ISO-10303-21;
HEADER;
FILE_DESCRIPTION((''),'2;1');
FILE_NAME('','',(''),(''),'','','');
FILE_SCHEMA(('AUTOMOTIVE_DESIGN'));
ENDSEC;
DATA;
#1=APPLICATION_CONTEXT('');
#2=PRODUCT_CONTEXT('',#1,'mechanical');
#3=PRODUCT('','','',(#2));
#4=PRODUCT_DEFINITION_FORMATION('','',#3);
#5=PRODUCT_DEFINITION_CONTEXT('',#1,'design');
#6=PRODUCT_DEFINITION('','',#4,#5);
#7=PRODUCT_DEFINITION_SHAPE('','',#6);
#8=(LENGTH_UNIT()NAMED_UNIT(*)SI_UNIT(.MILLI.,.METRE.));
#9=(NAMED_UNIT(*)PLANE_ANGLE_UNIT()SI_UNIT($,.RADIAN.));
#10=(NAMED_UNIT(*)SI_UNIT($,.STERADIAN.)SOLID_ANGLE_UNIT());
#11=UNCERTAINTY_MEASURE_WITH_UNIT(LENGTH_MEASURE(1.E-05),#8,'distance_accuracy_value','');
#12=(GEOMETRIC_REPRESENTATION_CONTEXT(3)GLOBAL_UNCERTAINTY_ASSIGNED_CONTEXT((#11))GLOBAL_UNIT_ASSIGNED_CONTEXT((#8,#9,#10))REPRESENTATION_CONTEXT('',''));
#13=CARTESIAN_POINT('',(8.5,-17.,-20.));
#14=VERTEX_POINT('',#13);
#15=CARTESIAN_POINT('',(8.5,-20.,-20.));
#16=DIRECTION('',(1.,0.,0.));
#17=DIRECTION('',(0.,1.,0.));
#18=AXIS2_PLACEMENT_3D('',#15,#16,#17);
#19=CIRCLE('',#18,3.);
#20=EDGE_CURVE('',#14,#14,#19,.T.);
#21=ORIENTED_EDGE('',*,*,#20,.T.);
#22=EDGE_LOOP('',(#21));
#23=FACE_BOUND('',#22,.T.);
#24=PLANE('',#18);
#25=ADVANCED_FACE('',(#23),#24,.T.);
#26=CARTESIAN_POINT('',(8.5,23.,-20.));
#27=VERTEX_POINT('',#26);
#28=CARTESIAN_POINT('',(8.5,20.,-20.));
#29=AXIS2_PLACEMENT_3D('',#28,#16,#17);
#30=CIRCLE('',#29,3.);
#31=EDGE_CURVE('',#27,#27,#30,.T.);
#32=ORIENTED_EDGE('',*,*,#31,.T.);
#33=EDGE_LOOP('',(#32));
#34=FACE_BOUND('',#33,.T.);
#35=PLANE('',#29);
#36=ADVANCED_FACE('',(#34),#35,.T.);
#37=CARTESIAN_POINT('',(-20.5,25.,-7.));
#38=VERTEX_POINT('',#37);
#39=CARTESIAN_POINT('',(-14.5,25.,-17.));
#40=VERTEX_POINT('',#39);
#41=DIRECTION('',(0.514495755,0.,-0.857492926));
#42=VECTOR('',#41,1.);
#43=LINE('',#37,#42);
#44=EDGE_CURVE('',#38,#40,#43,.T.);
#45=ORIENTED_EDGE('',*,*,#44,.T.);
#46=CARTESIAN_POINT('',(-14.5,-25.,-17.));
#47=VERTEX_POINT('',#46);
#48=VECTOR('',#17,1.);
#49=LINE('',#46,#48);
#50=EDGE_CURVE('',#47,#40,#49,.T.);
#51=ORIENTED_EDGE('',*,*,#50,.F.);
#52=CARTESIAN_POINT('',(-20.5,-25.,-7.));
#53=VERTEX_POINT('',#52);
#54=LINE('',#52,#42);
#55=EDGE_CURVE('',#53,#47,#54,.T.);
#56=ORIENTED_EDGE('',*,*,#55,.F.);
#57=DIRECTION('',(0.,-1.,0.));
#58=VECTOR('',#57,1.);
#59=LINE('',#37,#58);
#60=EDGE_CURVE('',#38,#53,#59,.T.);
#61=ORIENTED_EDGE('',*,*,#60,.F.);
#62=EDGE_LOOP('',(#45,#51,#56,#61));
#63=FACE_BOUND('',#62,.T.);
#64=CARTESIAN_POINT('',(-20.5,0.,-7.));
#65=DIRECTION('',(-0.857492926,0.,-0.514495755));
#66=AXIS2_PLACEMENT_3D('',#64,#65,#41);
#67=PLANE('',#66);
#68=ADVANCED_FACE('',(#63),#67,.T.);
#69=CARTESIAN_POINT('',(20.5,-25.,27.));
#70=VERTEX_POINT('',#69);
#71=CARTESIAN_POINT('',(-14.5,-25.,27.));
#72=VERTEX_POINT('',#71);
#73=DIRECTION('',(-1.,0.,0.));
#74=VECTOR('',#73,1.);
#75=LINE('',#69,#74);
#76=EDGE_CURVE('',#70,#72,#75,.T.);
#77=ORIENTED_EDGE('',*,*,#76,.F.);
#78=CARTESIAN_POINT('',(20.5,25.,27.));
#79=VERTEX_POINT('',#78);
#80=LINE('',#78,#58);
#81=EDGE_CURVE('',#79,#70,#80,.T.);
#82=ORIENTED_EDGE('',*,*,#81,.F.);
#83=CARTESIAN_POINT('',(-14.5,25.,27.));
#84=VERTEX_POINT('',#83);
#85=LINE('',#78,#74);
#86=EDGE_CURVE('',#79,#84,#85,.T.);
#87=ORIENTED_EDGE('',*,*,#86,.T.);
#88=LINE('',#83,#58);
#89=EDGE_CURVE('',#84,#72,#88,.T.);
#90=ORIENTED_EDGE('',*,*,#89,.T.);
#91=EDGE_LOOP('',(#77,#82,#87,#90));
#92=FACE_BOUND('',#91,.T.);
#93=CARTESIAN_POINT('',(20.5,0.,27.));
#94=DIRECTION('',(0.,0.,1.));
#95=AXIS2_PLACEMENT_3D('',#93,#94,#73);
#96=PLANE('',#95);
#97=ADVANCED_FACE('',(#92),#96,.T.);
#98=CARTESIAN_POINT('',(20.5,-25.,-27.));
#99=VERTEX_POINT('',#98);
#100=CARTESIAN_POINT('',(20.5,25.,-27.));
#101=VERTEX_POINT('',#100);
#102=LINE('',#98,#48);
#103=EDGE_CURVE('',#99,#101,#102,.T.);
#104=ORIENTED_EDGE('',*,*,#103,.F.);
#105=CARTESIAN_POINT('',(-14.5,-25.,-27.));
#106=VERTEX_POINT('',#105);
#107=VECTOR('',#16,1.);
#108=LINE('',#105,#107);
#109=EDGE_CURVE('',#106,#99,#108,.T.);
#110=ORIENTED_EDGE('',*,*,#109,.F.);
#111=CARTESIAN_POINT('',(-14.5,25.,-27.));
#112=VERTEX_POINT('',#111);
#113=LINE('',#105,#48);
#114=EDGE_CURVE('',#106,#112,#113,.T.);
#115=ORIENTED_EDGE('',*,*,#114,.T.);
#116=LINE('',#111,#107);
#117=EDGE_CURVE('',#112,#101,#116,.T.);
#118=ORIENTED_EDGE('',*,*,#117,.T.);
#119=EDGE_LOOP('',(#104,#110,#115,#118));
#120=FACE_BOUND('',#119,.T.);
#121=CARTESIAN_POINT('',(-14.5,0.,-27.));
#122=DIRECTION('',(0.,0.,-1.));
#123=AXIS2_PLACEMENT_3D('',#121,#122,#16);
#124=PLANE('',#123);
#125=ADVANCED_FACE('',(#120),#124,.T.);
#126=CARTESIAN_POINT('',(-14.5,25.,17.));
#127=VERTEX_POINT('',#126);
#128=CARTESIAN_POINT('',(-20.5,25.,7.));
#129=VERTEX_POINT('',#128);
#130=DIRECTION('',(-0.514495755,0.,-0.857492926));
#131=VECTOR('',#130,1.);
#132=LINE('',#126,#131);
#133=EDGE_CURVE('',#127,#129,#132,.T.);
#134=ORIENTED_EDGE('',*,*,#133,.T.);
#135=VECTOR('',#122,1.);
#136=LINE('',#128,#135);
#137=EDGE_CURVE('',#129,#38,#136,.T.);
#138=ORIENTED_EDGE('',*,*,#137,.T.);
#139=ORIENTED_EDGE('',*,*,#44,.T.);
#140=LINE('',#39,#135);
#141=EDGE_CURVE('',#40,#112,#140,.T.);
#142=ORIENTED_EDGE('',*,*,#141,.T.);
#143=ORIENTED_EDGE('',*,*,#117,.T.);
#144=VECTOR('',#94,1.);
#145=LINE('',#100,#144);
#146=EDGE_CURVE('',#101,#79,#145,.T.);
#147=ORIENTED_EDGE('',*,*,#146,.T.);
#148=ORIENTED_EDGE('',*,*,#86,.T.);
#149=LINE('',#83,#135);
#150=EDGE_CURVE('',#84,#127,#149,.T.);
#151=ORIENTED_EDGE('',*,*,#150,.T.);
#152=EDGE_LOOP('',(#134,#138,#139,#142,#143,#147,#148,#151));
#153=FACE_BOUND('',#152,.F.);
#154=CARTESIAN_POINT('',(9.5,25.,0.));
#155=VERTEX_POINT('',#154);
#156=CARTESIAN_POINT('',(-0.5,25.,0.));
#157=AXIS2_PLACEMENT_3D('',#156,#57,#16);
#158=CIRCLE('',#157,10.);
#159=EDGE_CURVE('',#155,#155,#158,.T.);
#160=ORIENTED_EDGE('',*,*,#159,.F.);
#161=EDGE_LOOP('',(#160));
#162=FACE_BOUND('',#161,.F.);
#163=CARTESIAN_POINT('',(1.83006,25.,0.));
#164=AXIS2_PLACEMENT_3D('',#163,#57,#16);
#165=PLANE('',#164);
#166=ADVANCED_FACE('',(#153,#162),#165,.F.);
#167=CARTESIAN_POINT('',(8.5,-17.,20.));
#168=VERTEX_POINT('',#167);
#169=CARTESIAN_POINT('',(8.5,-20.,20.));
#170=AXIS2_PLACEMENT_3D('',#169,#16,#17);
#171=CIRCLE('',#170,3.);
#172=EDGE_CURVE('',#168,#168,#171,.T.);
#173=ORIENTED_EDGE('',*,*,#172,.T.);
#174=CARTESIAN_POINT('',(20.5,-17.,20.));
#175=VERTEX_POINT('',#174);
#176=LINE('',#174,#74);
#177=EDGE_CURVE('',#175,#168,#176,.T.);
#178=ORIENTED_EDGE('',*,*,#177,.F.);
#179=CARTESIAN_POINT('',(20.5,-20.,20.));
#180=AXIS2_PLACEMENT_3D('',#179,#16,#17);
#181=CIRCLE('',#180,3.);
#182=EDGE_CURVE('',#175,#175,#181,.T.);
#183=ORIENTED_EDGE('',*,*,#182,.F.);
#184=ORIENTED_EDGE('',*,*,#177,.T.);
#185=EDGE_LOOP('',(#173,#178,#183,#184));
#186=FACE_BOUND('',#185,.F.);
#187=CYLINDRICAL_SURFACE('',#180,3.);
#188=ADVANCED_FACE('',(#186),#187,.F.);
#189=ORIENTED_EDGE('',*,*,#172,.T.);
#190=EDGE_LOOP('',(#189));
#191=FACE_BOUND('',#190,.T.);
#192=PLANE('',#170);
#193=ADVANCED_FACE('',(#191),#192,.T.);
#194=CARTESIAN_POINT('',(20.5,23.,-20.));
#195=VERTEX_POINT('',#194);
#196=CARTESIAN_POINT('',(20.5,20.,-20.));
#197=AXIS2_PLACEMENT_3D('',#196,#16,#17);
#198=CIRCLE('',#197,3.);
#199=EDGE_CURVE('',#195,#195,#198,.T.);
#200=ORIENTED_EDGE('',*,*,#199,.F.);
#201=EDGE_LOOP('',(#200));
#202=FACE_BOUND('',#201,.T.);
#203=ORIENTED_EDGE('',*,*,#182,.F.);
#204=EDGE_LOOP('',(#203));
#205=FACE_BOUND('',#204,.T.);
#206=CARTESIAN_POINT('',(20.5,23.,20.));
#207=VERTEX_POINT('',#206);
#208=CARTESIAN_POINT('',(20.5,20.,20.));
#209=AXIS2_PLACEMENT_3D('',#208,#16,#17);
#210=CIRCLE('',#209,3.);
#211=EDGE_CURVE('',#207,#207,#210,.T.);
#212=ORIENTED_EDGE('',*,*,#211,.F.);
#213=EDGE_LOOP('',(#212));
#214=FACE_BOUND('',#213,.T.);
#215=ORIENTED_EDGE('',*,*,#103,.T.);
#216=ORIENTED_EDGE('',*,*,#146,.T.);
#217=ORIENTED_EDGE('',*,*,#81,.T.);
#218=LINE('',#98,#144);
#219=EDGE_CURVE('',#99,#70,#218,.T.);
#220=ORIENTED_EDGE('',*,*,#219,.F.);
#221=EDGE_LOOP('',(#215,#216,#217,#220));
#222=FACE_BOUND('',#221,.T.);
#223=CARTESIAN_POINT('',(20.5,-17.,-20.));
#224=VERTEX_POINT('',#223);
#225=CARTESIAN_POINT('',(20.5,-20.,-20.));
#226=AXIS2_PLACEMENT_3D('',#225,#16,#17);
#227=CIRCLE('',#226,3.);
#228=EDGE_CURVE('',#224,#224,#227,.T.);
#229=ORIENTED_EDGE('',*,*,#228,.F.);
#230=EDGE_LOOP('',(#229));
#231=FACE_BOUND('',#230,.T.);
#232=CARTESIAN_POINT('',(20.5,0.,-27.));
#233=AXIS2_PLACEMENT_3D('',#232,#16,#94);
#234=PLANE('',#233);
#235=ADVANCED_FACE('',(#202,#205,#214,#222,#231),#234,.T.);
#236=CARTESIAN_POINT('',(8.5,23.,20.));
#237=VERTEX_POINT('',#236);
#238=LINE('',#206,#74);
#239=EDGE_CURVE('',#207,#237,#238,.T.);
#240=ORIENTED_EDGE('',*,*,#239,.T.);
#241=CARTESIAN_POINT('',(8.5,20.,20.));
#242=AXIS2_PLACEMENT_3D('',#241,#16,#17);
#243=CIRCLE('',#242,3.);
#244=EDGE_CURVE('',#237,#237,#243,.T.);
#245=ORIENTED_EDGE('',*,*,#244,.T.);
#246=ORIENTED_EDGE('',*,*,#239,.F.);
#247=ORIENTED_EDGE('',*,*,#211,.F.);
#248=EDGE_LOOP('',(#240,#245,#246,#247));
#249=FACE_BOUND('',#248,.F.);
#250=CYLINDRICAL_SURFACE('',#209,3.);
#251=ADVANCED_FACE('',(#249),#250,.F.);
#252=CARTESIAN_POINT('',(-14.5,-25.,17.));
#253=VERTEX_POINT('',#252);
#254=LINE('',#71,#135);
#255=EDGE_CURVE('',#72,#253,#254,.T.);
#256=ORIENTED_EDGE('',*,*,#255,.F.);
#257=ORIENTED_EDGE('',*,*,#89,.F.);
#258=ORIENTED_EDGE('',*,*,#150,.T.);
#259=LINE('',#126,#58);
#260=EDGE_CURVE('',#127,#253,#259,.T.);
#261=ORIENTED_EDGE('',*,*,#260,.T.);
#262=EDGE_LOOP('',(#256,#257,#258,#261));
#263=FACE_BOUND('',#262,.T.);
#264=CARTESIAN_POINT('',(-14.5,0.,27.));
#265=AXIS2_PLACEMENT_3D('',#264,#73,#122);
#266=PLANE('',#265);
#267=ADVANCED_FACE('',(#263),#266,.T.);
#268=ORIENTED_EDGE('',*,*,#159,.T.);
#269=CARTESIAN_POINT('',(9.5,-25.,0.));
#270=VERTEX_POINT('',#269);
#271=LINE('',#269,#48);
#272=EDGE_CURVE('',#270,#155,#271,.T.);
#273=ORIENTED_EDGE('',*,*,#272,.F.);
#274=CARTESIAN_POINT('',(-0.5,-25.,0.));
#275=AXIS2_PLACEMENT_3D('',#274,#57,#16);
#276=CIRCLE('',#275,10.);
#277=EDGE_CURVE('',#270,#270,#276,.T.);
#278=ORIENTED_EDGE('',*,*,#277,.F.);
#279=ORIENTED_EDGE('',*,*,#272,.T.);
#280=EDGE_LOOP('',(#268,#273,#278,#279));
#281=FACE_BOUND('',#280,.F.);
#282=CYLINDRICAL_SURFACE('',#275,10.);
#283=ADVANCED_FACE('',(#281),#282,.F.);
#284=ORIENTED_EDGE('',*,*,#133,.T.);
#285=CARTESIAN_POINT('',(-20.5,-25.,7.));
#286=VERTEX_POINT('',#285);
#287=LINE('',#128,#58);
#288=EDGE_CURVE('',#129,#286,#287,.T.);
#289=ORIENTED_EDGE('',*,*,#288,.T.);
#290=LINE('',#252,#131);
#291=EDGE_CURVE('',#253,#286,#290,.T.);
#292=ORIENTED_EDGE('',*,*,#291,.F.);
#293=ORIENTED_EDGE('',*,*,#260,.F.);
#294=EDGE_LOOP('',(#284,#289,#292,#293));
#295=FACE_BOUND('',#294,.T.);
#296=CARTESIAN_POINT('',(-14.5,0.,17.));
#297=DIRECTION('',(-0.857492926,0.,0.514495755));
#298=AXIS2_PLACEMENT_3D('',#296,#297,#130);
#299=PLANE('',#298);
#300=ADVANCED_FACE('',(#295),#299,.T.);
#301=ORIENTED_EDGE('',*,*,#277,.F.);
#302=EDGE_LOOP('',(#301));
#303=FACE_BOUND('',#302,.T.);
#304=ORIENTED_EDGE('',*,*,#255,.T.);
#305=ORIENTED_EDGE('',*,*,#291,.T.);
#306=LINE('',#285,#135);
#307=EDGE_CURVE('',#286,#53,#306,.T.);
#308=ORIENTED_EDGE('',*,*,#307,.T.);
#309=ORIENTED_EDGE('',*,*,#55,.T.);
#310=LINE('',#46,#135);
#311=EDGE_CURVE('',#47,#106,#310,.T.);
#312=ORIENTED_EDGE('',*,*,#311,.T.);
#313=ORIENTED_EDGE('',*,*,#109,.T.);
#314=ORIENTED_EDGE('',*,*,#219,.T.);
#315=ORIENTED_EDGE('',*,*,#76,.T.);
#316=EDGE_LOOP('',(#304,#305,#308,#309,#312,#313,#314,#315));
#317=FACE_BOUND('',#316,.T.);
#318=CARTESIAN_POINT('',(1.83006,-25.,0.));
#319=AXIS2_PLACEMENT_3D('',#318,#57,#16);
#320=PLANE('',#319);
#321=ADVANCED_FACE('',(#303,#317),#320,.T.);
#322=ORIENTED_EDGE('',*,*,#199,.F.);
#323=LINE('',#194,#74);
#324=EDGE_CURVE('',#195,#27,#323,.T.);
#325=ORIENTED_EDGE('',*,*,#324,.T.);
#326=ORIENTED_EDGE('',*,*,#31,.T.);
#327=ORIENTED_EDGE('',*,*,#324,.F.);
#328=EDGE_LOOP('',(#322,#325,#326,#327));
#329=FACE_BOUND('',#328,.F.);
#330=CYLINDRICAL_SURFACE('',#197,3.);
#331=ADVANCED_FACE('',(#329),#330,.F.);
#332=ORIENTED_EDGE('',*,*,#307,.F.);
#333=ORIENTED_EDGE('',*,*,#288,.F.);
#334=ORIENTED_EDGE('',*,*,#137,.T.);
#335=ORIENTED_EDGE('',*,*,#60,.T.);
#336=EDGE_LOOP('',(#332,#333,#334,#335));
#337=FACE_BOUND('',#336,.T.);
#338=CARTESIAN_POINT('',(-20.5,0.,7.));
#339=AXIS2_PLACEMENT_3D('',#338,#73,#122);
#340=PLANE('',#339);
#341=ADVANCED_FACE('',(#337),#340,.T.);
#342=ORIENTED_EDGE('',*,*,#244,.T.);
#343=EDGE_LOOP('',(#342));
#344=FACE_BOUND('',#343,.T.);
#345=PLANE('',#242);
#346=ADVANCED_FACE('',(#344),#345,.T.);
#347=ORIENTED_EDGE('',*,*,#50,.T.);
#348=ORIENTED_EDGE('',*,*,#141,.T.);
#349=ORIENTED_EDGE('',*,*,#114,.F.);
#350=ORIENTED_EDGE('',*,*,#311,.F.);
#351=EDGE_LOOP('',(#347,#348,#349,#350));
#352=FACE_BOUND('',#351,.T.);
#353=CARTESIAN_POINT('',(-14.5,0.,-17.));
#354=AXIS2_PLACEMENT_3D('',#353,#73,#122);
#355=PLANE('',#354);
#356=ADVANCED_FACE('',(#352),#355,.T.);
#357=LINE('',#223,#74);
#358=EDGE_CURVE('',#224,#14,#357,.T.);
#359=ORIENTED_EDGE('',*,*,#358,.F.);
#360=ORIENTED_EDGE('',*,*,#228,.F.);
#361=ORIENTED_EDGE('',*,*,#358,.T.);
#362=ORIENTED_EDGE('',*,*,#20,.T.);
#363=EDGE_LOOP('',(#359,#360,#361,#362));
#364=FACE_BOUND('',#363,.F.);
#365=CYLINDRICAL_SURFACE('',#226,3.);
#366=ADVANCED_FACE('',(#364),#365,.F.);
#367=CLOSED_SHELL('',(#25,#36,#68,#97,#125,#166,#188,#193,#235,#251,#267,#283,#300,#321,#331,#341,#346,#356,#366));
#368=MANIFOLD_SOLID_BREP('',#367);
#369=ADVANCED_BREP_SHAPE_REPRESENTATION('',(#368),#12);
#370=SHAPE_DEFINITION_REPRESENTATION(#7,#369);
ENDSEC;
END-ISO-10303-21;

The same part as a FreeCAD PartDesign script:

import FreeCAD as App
import Part
import Sketcher

doc = App.newDocument("Part")
params = doc.addObject("Spreadsheet::Sheet", "Params")
for row, (alias, value) in enumerate([
    ("sketch1_width", "35 mm"),
    ("sketch1_height", "54 mm"),
    ("sketch1_height2", "10 mm"),
    ("sketch1_height3", "14 mm"),
    ("pad1_length", "50 mm"),
    ("sketch2_diameter", "20 mm"),
    ("pocket1_length", "50 mm"),
    ("sketch3_diameter", "6 mm"),
    ("pocket2_length", "12 mm"),
], start=1):
    params.set(f"A{row}", alias)
    params.set(f"B{row}", "=" + value)
    params.setAlias(f"B{row}", alias)

body = doc.addObject("PartDesign::Body", "Body")

sketch1 = body.newObject("Sketcher::SketchObject", "Sketch")
sketch1.AttachmentSupport = (doc.getObject("XZ_Plane"), [""])
sketch1.MapMode = "FlatFace"
sketch1.addGeometry(Part.LineSegment(App.Vector(20, -27, 0), App.Vector(20, 27, 0)), False)
sketch1.addGeometry(Part.LineSegment(App.Vector(20, 27, 0), App.Vector(-14, 27, 0)), False)
sketch1.addGeometry(Part.LineSegment(App.Vector(-14, 27, 0), App.Vector(-14, 17, 0)), False)
sketch1.addGeometry(Part.LineSegment(App.Vector(-14, 17, 0), App.Vector(-20, 7, 0)), False)
sketch1.addGeometry(Part.LineSegment(App.Vector(-20, 7, 0), App.Vector(-20, -7, 0)), False)
sketch1.addGeometry(Part.LineSegment(App.Vector(-20, -7, 0), App.Vector(-14, -17, 0)), False)
sketch1.addGeometry(Part.LineSegment(App.Vector(-14, -17, 0), App.Vector(-14, -27, 0)), False)
sketch1.addGeometry(Part.LineSegment(App.Vector(-14, -27, 0), App.Vector(20, -27, 0)), False)
sketch1.addConstraint(Sketcher.Constraint("Coincident", 0, 2, 1, 1))
sketch1.addConstraint(Sketcher.Constraint("Coincident", 1, 2, 2, 1))
sketch1.addConstraint(Sketcher.Constraint("Coincident", 2, 2, 3, 1))
sketch1.addConstraint(Sketcher.Constraint("Coincident", 3, 2, 4, 1))
sketch1.addConstraint(Sketcher.Constraint("Coincident", 4, 2, 5, 1))
sketch1.addConstraint(Sketcher.Constraint("Coincident", 5, 2, 6, 1))
sketch1.addConstraint(Sketcher.Constraint("Coincident", 6, 2, 7, 1))
sketch1.addConstraint(Sketcher.Constraint("Coincident", 7, 2, 0, 1))
sketch1.addConstraint(Sketcher.Constraint("Vertical", 0))
sketch1.addConstraint(Sketcher.Constraint("Horizontal", 1))
sketch1.addConstraint(Sketcher.Constraint("Vertical", 2))
sketch1.addConstraint(Sketcher.Constraint("Vertical", 4))
sketch1.addConstraint(Sketcher.Constraint("Vertical", 6))
sketch1.addConstraint(Sketcher.Constraint("Horizontal", 7))
sketch1.addConstraint(Sketcher.Constraint("Symmetric", 2, 2, 5, 2, -1))
sketch1.addConstraint(Sketcher.Constraint("Equal", 2, 6))
sketch1.addConstraint(Sketcher.Constraint("Equal", 3, 5))
sketch1.addConstraint(Sketcher.Constraint("DistanceX", 1, 2, 1, 1, 35.0))
sketch1.addConstraint(Sketcher.Constraint("DistanceY", 0, 1, 0, 2, 54.0))
sketch1.addConstraint(Sketcher.Constraint("DistanceY", 2, 2, 2, 1, 10.0))
sketch1.addConstraint(Sketcher.Constraint("DistanceY", 4, 2, 4, 1, 14.0))
sketch1.addConstraint(Sketcher.Constraint("DistanceX", 3, 2, 2, 2, 6.0))
sketch1.addConstraint(Sketcher.Constraint("DistanceX", -1, 1, 0, 2, 20.5))
sketch1.setExpression("Constraints[17]", "Params.sketch1_width")
sketch1.setExpression("Constraints[18]", "Params.sketch1_height")
sketch1.setExpression("Constraints[19]", "Params.sketch1_height2")
sketch1.setExpression("Constraints[20]", "Params.sketch1_height3")
pad1 = body.newObject("PartDesign::Pad", "Pad")
pad1.Profile = sketch1
pad1.setExpression("Length", "Params.pad1_length")
pad1.Midplane = True

sketch2 = body.newObject("Sketcher::SketchObject", "Sketch001")
sketch2.AttachmentSupport = (doc.getObject("XZ_Plane"), [""])
sketch2.MapMode = "FlatFace"
sketch2.AttachmentOffset = App.Placement(App.Vector(0, 0, 25), App.Rotation())
sketch2.addGeometry(Part.Circle(App.Vector(0, 0, 0), App.Vector(0, 0, 1), 10), False)
sketch2.addConstraint(Sketcher.Constraint("PointOnObject", 0, 3, -1))
sketch2.addConstraint(Sketcher.Constraint("Diameter", 0, 20.0))
sketch2.addConstraint(Sketcher.Constraint("DistanceX", 0, 3, -1, 1, 0.5))
sketch2.setExpression("Constraints[1]", "Params.sketch2_diameter")
pocket1 = body.newObject("PartDesign::Pocket", "Pocket")
pocket1.Profile = sketch2
pocket1.setExpression("Length", "Params.pocket1_length")

sketch3 = body.newObject("Sketcher::SketchObject", "Sketch002")
sketch3.AttachmentSupport = (doc.getObject("YZ_Plane"), [""])
sketch3.MapMode = "FlatFace"
sketch3.AttachmentOffset = App.Placement(App.Vector(0, 0, 20.5), App.Rotation())
sketch3.addGeometry(Part.Circle(App.Vector(-20, 20, 0), App.Vector(0, 0, 1), 3), False)
sketch3.addGeometry(Part.Circle(App.Vector(20, 20, 0), App.Vector(0, 0, 1), 3), False)
sketch3.addGeometry(Part.Circle(App.Vector(20, -20, 0), App.Vector(0, 0, 1), 3), False)
sketch3.addGeometry(Part.Circle(App.Vector(-20, -20, 0), App.Vector(0, 0, 1), 3), False)
sketch3.addConstraint(Sketcher.Constraint("Equal", 0, 1))
sketch3.addConstraint(Sketcher.Constraint("Equal", 1, 2))
sketch3.addConstraint(Sketcher.Constraint("Equal", 2, 3))
sketch3.addConstraint(Sketcher.Constraint("Symmetric", 0, 3, 2, 3, -1, 1))
sketch3.addConstraint(Sketcher.Constraint("Symmetric", 1, 3, 3, 3, -1, 1))
sketch3.addConstraint(Sketcher.Constraint("Symmetric", 0, 3, 1, 3, -2))
sketch3.addConstraint(Sketcher.Constraint("Diameter", 0, 6.0))
sketch3.addConstraint(Sketcher.Constraint("DistanceX", 0, 3, -1, 1, 20.0))
sketch3.addConstraint(Sketcher.Constraint("DistanceY", -1, 1, 0, 3, 20.0))
sketch3.setExpression("Constraints[6]", "Params.sketch3_diameter")
pocket2 = body.newObject("PartDesign::Pocket", "Pocket001")
pocket2.Profile = sketch3
pocket2.setExpression("Length", "Params.pocket2_length")

doc.recompute()
